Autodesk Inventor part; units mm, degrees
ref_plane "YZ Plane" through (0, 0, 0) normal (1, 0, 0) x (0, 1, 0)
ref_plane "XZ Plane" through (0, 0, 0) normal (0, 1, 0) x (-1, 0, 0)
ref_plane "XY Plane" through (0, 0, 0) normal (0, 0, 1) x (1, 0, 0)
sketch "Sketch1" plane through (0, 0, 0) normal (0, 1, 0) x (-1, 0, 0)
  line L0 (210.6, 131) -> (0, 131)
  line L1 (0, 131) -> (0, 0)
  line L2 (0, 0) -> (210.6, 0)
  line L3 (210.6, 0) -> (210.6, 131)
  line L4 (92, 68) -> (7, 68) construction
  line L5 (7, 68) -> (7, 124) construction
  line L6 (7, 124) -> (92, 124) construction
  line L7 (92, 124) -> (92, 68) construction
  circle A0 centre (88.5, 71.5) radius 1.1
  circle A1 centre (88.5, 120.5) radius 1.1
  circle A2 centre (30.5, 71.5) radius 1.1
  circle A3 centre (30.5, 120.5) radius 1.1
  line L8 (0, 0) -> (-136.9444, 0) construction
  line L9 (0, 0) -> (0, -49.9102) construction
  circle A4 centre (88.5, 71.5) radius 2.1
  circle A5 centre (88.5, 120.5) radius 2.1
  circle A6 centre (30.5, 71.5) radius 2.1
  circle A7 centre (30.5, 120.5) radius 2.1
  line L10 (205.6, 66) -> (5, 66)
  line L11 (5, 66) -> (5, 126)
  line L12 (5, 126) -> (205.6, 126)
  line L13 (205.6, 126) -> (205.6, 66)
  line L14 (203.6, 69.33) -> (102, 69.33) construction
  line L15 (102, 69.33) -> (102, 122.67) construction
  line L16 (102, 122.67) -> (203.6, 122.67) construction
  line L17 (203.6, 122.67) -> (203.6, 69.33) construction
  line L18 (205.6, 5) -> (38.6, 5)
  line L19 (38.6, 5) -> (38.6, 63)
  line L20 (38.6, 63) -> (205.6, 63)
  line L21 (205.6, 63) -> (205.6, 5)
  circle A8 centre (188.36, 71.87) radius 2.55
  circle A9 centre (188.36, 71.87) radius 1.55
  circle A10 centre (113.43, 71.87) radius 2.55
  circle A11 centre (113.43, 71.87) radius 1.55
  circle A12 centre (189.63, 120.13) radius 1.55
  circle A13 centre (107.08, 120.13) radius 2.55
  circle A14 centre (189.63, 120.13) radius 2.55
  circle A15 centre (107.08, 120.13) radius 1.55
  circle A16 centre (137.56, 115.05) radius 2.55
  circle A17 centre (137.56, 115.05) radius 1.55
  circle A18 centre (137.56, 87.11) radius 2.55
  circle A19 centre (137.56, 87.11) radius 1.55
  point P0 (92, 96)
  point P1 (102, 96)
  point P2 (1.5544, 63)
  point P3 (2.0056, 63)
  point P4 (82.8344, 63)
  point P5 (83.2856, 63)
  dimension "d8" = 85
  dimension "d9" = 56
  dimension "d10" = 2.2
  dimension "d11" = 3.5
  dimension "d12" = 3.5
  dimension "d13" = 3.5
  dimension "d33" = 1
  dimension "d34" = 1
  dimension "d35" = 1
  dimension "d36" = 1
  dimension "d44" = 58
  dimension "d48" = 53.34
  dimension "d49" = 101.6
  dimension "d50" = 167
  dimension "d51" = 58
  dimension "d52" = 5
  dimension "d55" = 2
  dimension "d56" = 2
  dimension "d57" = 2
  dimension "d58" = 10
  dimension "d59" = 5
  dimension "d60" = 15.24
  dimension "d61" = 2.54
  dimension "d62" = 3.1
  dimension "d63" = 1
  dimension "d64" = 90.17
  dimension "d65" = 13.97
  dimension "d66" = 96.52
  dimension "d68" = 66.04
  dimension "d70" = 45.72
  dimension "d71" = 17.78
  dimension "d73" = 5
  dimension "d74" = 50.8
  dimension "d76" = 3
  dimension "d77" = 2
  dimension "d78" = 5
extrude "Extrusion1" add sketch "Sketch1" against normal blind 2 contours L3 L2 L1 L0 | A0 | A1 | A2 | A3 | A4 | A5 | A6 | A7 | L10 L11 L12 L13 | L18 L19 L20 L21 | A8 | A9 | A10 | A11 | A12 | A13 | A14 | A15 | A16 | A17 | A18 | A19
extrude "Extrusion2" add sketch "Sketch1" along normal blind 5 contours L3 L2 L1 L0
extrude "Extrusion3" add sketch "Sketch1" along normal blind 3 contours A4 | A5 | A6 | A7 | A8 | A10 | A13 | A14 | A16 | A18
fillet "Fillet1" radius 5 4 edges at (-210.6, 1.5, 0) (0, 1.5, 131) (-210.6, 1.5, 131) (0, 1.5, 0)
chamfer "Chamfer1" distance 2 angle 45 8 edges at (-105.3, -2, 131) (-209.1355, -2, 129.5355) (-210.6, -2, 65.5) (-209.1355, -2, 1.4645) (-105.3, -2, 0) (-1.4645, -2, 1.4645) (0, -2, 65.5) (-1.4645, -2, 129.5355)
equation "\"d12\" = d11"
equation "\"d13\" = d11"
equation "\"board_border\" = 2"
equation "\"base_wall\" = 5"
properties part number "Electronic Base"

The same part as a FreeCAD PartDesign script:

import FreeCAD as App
import Part
import Sketcher
Q = App.Units.Quantity


def edges_at(feature, points):
    """Names of the edges that pass closest to the given points."""
    edges = feature.Shape.Edges
    near = lambda p: min(range(len(edges)), key=lambda i: edges[i].distToShape(Part.Vertex(*p))[0])
    return sorted({f"Edge{near(p) + 1}" for p in points})

doc = App.newDocument("Part")
body = doc.addObject("PartDesign::Body", "Body")

# Sketch on XZ plane
sketch1 = body.newObject("Sketcher::SketchObject", "Sketch")
sketch1.AttachmentSupport = (doc.getObject("XZ_Plane"), [""])
sketch1.MapMode = "FlatFace"
sketch1.addGeometry(Part.LineSegment(App.Vector(-211, 0, 0), App.Vector(-211, 131, 0)), False)
sketch1.addGeometry(Part.LineSegment(App.Vector(-211, 131, 0), App.Vector(0, 131, 0)), False)
sketch1.addGeometry(Part.LineSegment(App.Vector(0, 131, 0), App.Vector(0, 0, 0)), False)
sketch1.addGeometry(Part.LineSegment(App.Vector(0, 0, 0), App.Vector(-211, 0, 0)), False)
sketch1.addConstraint(Sketcher.Constraint("Coincident", 0, 2, 1, 1))
sketch1.addConstraint(Sketcher.Constraint("Coincident", 1, 2, 2, 1))
sketch1.addConstraint(Sketcher.Constraint("Coincident", 2, 2, 3, 1))
sketch1.addConstraint(Sketcher.Constraint("Coincident", 3, 2, 0, 1))
sketch1.addConstraint(Sketcher.Constraint("Vertical", 0))
sketch1.addConstraint(Sketcher.Constraint("Horizontal", 1))
sketch1.addConstraint(Sketcher.Constraint("Vertical", 2))
sketch1.addConstraint(Sketcher.Constraint("Horizontal", 3))
sketch1.addConstraint(Sketcher.Constraint("Coincident", 2, 2, -1, 1))
sketch1.addConstraint(Sketcher.Constraint("DistanceY", 0, 1, 0, 2, Q("131 mm")))
sketch1.addConstraint(Sketcher.Constraint("DistanceX", 1, 1, 1, 2, Q("210.6 mm")))
pad1 = body.newObject("PartDesign::Pad", "Pad")
pad1.Profile = sketch1
pad1.Length = 2

# Sketch on XZ plane
sketch2 = body.newObject("Sketcher::SketchObject", "Sketch001")
sketch2.AttachmentSupport = (doc.getObject("XZ_Plane"), [""])
sketch2.MapMode = "FlatFace"
sketch2.addGeometry(Part.LineSegment(App.Vector(-211, 0, 0), App.Vector(-211, 131, 0)), False)
sketch2.addGeometry(Part.LineSegment(App.Vector(-211, 131, 0), App.Vector(0, 131, 0)), False)
sketch2.addGeometry(Part.LineSegment(App.Vector(0, 131, 0), App.Vector(0, 0, 0)), False)
sketch2.addGeometry(Part.LineSegment(App.Vector(0, 0, 0), App.Vector(-211, 0, 0)), False)
sketch2.addGeometry(Part.LineSegment(App.Vector(-206, 63, 0), App.Vector(-206, 5, 0)), False)
sketch2.addGeometry(Part.LineSegment(App.Vector(-206, 5, 0), App.Vector(-39, 5, 0)), False)
sketch2.addGeometry(Part.LineSegment(App.Vector(-39, 5, 0), App.Vector(-39, 63, 0)), False)
sketch2.addGeometry(Part.LineSegment(App.Vector(-39, 63, 0), App.Vector(-206, 63, 0)), False)
sketch2.addGeometry(Part.LineSegment(App.Vector(-206, 126, 0), App.Vector(-206, 66, 0)), False)
sketch2.addGeometry(Part.LineSegment(App.Vector(-206, 66, 0), App.Vector(-5, 66, 0)), False)
sketch2.addGeometry(Part.LineSegment(App.Vector(-5, 66, 0), App.Vector(-5, 126, 0)), False)
sketch2.addGeometry(Part.LineSegment(App.Vector(-5, 126, 0), App.Vector(-206, 126, 0)), False)
sketch2.addConstraint(Sketcher.Constraint("Coincident", 0, 2, 1, 1))
sketch2.addConstraint(Sketcher.Constraint("Coincident", 1, 2, 2, 1))
sketch2.addConstraint(Sketcher.Constraint("Coincident", 2, 2, 3, 1))
sketch2.addConstraint(Sketcher.Constraint("Coincident", 3, 2, 0, 1))
sketch2.addConstraint(Sketcher.Constraint("Coincident", 4, 2, 5, 1))
sketch2.addConstraint(Sketcher.Constraint("Coincident", 5, 2, 6, 1))
sketch2.addConstraint(Sketcher.Constraint("Coincident", 6, 2, 7, 1))
sketch2.addConstraint(Sketcher.Constraint("Coincident", 7, 2, 4, 1))
sketch2.addConstraint(Sketcher.Constraint("Coincident", 8, 2, 9, 1))
sketch2.addConstraint(Sketcher.Constraint("Coincident", 9, 2, 10, 1))
sketch2.addConstraint(Sketcher.Constraint("Coincident", 10, 2, 11, 1))
sketch2.addConstraint(Sketcher.Constraint("Coincident", 11, 2, 8, 1))
sketch2.addConstraint(Sketcher.Constraint("Vertical", 0))
sketch2.addConstraint(Sketcher.Constraint("Horizontal", 1))
sketch2.addConstraint(Sketcher.Constraint("Vertical", 2))
sketch2.addConstraint(Sketcher.Constraint("Horizontal", 3))
sketch2.addConstraint(Sketcher.Constraint("Vertical", 4))
sketch2.addConstraint(Sketcher.Constraint("Horizontal", 5))
sketch2.addConstraint(Sketcher.Constraint("Vertical", 6))
sketch2.addConstraint(Sketcher.Constraint("Horizontal", 7))
sketch2.addConstraint(Sketcher.Constraint("Vertical", 8))
sketch2.addConstraint(Sketcher.Constraint("Horizontal", 9))
sketch2.addConstraint(Sketcher.Constraint("Vertical", 10))
sketch2.addConstraint(Sketcher.Constraint("Horizontal", 11))
sketch2.addConstraint(Sketcher.Constraint("Coincident", 2, 2, -1, 1))
sketch2.addConstraint(Sketcher.Constraint("Vertical", 7, 2, 8, 2))
sketch2.addConstraint(Sketcher.Constraint("DistanceX", 5, 1, 5, 2, Q("167 mm")))
sketch2.addConstraint(Sketcher.Constraint("DistanceY", 4, 2, 4, 1, Q("58 mm")))
sketch2.addConstraint(Sketcher.Constraint("DistanceY", -1, 1, 4, 2, Q("5 mm")))
sketch2.addConstraint(Sketcher.Constraint("DistanceX", 9, 2, -1, 1, Q("5 mm")))
sketch2.addConstraint(Sketcher.Constraint("DistanceX", 3, 2, 4, 2, Q("5 mm")))
sketch2.addConstraint(Sketcher.Constraint("DistanceY", 7, 2, 8, 2, Q("3 mm")))
sketch2.addConstraint(Sketcher.Constraint("DistanceY", 10, 2, 1, 2, Q("5 mm")))
sketch2.addConstraint(Sketcher.Constraint("DistanceY", 0, 1, 0, 2, Q("131 mm")))
sketch2.addConstraint(Sketcher.Constraint("DistanceX", 1, 1, 1, 2, Q("210.6 mm")))
pad2 = body.newObject("PartDesign::Pad", "Pad001")
pad2.Profile = sketch2
pad2.Length = 5
pad2.Reversed = True

# Sketch on XZ plane
sketch3 = body.newObject("Sketcher::SketchObject", "Sketch002")
sketch3.AttachmentSupport = (doc.getObject("XZ_Plane"), [""])
sketch3.MapMode = "FlatFace"
sketch3.addGeometry(Part.Circle(App.Vector(-88.5, 71.5, 0), App.Vector(0, 0, 1), 2.1), False)
sketch3.addGeometry(Part.Circle(App.Vector(-88.5, 71.5, 0), App.Vector(0, 0, 1), 1.1), False)
sketch3.addGeometry(Part.Circle(App.Vector(-88.5, 120.5, 0), App.Vector(0, 0, 1), 2.1), False)
sketch3.addGeometry(Part.Circle(App.Vector(-88.5, 120.5, 0), App.Vector(0, 0, 1), 1.1), False)
sketch3.addGeometry(Part.Circle(App.Vector(-30.5, 71.5, 0), App.Vector(0, 0, 1), 2.1), False)
sketch3.addGeometry(Part.Circle(App.Vector(-30.5, 71.5, 0), App.Vector(0, 0, 1), 1.1), False)
sketch3.addGeometry(Part.Circle(App.Vector(-30.5, 120.5, 0), App.Vector(0, 0, 1), 2.1), False)
sketch3.addGeometry(Part.Circle(App.Vector(-30.5, 120.5, 0), App.Vector(0, 0, 1), 1.1), False)
sketch3.addGeometry(Part.Circle(App.Vector(-188.4, 71.9, 0), App.Vector(0, 0, 1), 2.5), False)
sketch3.addGeometry(Part.Circle(App.Vector(-188.4, 71.9, 0), App.Vector(0, 0, 1), 1.6), False)
sketch3.addGeometry(Part.Circle(App.Vector(-113.4, 71.9, 0), App.Vector(0, 0, 1), 2.5), False)
sketch3.addGeometry(Part.Circle(App.Vector(-113.4, 71.9, 0), App.Vector(0, 0, 1), 1.6), False)
sketch3.addGeometry(Part.Circle(App.Vector(-107.1, 120.1, 0), App.Vector(0, 0, 1), 2.5), False)
sketch3.addGeometry(Part.Circle(App.Vector(-107.1, 120.1, 0), App.Vector(0, 0, 1), 1.6), False)
sketch3.addGeometry(Part.Circle(App.Vector(-189.6, 120.1, 0), App.Vector(0, 0, 1), 2.5), False)
sketch3.addGeometry(Part.Circle(App.Vector(-189.6, 120.1, 0), App.Vector(0, 0, 1), 1.6), False)
sketch3.addGeometry(Part.Circle(App.Vector(-137.6, 115, 0), App.Vector(0, 0, 1), 2.5), False)
sketch3.addGeometry(Part.Circle(App.Vector(-137.6, 115, 0), App.Vector(0, 0, 1), 1.6), False)
sketch3.addGeometry(Part.Circle(App.Vector(-137.6, 87.1, 0), App.Vector(0, 0, 1), 2.5), False)
sketch3.addGeometry(Part.Circle(App.Vector(-137.6, 87.1, 0), App.Vector(0, 0, 1), 1.6), False)
sketch3.addConstraint(Sketcher.Constraint("Coincident", 1, 3, 0, 3))
sketch3.addConstraint(Sketcher.Constraint("Coincident", 3, 3, 2, 3))
sketch3.addConstraint(Sketcher.Constraint("Coincident", 5, 3, 4, 3))
sketch3.addConstraint(Sketcher.Constraint("Coincident", 7, 3, 6, 3))
sketch3.addConstraint(Sketcher.Constraint("Coincident", 9, 3, 8, 3))
sketch3.addConstraint(Sketcher.Constraint("Coincident", 11, 3, 10, 3))
sketch3.addConstraint(Sketcher.Constraint("Coincident", 13, 3, 12, 3))
sketch3.addConstraint(Sketcher.Constraint("Coincident", 15, 3, 14, 3))
sketch3.addConstraint(Sketcher.Constraint("Coincident", 17, 3, 16, 3))
sketch3.addConstraint(Sketcher.Constraint("Coincident", 19, 3, 18, 3))
sketch3.addConstraint(Sketcher.Constraint("Equal", 0, 2))
sketch3.addConstraint(Sketcher.Constraint("Equal", 1, 3))
sketch3.addConstraint(Sketcher.Constraint("Equal", 2, 4))
sketch3.addConstraint(Sketcher.Constraint("Equal", 3, 5))
sketch3.addConstraint(Sketcher.Constraint("Equal", 4, 6))
sketch3.addConstraint(Sketcher.Constraint("Equal", 5, 7))
sketch3.addConstraint(Sketcher.Constraint("Equal", 8, 10))
sketch3.addConstraint(Sketcher.Constraint("Equal", 9, 11))
sketch3.addConstraint(Sketcher.Constraint("Equal", 10, 12))
sketch3.addConstraint(Sketcher.Constraint("Equal", 11, 13))
sketch3.addConstraint(Sketcher.Constraint("Equal", 12, 14))
sketch3.addConstraint(Sketcher.Constraint("Equal", 13, 15))
sketch3.addConstraint(Sketcher.Constraint("Equal", 14, 16))
sketch3.addConstraint(Sketcher.Constraint("Equal", 15, 17))
sketch3.addConstraint(Sketcher.Constraint("Equal", 16, 18))
sketch3.addConstraint(Sketcher.Constraint("Equal", 17, 19))
sketch3.addConstraint(Sketcher.Constraint("Horizontal", 1, 3, 4, 3))
sketch3.addConstraint(Sketcher.Constraint("Horizontal", 3, 3, 6, 3))
sketch3.addConstraint(Sketcher.Constraint("Horizontal", 9, 3, 10, 3))
sketch3.addConstraint(Sketcher.Constraint("Horizontal", 13, 3, 14, 3))
sketch3.addConstraint(Sketcher.Constraint("Vertical", 1, 3, 2, 3))
sketch3.addConstraint(Sketcher.Constraint("Vertical", 5, 3, 6, 3))
sketch3.addConstraint(Sketcher.Constraint("Vertical", 17, 3, 18, 3))
sketch3.addConstraint(Sketcher.Constraint("Diameter", 1, Q("2.2 mm")))
sketch3.addConstraint(Sketcher.Constraint("Diameter", 9, Q("3.1 mm")))
sketch3.addConstraint(Sketcher.Constraint("DistanceX", 0, 3, 4, 3, Q("58 mm")))
sketch3.addConstraint(Sketcher.Constraint("Diameter", 0, Q("4.2 mm")))
sketch3.addConstraint(Sketcher.Constraint("Diameter", 8, Q("5.1 mm")))
sketch3.addConstraint(Sketcher.Constraint("DistanceY", 10, 3, 18, 3, Q("15.24 mm")))
sketch3.addConstraint(Sketcher.Constraint("DistanceY", 0, 3, 2, 3, Q("49 mm")))
sketch3.addConstraint(Sketcher.Constraint("DistanceX", 0, 3, -1, 1, Q("88.5 mm")))
sketch3.addConstraint(Sketcher.Constraint("DistanceY", -1, 1, 0, 3, Q("71.5 mm")))
sketch3.addConstraint(Sketcher.Constraint("DistanceX", 14, 3, 10, 3, Q("76.2 mm")))
sketch3.addConstraint(Sketcher.Constraint("DistanceX", 8, 3, -1, 1, Q("188.36 mm")))
sketch3.addConstraint(Sketcher.Constraint("DistanceY", -1, 1, 8, 3, Q("71.87 mm")))
sketch3.addConstraint(Sketcher.Constraint("DistanceX", 10, 3, -1, 1, Q("113.43 mm")))
sketch3.addConstraint(Sketcher.Constraint("DistanceX", 12, 3, -1, 1, Q("107.08 mm")))
sketch3.addConstraint(Sketcher.Constraint("DistanceY", -1, 1, 12, 3, Q("120.13 mm")))
sketch3.addConstraint(Sketcher.Constraint("DistanceX", 16, 3, -1, 1, Q("137.56 mm")))
sketch3.addConstraint(Sketcher.Constraint("DistanceY", -1, 1, 16, 3, Q("115.05 mm")))
pad3 = body.newObject("PartDesign::Pad", "Pad002")
pad3.Profile = sketch3
pad3.Length = 3
pad3.Reversed = True
doc.recompute()

fillet = body.newObject("PartDesign::Fillet", "Fillet")
fillet.Base = (pad3, edges_at(pad3, [
    (-210.6, 1.5, 0),
    (0, 1.5, 131),
    (-210.6, 1.5, 131),
    (0, 1.5, 0),
]))
fillet.Radius = 5
doc.recompute()

chamfer = body.newObject("PartDesign::Chamfer", "Chamfer")
chamfer.Base = (fillet, edges_at(fillet, [
    (-105.3, -2, 131),
    (-209.136, -2, 129.536),
    (-210.6, -2, 65.5),
    (-209.136, -2, 1.464),
    (-105.3, -2, 0),
    (-1.464, -2, 1.464),
    (0, -2, 65.5),
    (-1.464, -2, 129.536),
]))
chamfer.Size = 2

doc.recompute()
